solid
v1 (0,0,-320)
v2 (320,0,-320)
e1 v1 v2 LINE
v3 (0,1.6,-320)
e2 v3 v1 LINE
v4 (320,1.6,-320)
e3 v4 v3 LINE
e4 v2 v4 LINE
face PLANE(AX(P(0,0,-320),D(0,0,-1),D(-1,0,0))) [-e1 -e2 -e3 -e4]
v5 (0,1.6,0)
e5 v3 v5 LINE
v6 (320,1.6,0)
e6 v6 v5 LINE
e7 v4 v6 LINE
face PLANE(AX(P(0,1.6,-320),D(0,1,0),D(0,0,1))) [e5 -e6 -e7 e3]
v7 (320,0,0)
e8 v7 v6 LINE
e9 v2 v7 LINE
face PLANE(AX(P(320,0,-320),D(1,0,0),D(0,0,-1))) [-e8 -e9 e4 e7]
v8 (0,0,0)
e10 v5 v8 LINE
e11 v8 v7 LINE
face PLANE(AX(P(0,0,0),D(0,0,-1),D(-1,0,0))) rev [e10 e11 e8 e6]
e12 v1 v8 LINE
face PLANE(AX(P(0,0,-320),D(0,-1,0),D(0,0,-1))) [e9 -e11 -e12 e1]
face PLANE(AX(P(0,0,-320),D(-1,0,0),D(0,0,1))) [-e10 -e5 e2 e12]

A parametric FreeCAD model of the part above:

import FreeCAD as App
import Part
import Sketcher

V = App.Vector

doc = App.newDocument("Part")
body = doc.addObject("PartDesign::Body", "Body")

# Sketch on XY plane
sketch1 = doc.addObject("Sketcher::SketchObject", "Sketch")
body.addObject(sketch1)
sketch1.AttachmentSupport = (doc.XY_Plane, [""])
sketch1.MapMode = "FlatFace"
sketch1.addGeometry([
    Part.LineSegment(V(0, 1.6, 0), V(0, 0, 0)),
    Part.LineSegment(V(0, 0, 0), V(320, 0, 0)),
    Part.LineSegment(V(320, 0, 0), V(320, 1.6, 0)),
    Part.LineSegment(V(320, 1.6, 0), V(0, 1.6, 0)),
], False)
sketch1.addConstraint([
    Sketcher.Constraint("Coincident", 0, 2, 1, 1),
    Sketcher.Constraint("Coincident", 1, 2, 2, 1),
    Sketcher.Constraint("Coincident", 2, 2, 3, 1),
    Sketcher.Constraint("Coincident", 3, 2, 0, 1),
    Sketcher.Constraint("Vertical", 0),
    Sketcher.Constraint("Horizontal", 1),
    Sketcher.Constraint("Vertical", 2),
    Sketcher.Constraint("Horizontal", 3),
    Sketcher.Constraint("Coincident", 0, 2, -1, 1),
    Sketcher.Constraint("DistanceX", 1, 1, 1, 2, 320.0),
    Sketcher.Constraint("DistanceY", 0, 2, 0, 1, 1.6),
])
pad1 = doc.addObject("PartDesign::Pad", "Pad")
body.addObject(pad1)
pad1.Profile = sketch1
pad1.Length = 320
pad1.Reversed = True

doc.recompute()
